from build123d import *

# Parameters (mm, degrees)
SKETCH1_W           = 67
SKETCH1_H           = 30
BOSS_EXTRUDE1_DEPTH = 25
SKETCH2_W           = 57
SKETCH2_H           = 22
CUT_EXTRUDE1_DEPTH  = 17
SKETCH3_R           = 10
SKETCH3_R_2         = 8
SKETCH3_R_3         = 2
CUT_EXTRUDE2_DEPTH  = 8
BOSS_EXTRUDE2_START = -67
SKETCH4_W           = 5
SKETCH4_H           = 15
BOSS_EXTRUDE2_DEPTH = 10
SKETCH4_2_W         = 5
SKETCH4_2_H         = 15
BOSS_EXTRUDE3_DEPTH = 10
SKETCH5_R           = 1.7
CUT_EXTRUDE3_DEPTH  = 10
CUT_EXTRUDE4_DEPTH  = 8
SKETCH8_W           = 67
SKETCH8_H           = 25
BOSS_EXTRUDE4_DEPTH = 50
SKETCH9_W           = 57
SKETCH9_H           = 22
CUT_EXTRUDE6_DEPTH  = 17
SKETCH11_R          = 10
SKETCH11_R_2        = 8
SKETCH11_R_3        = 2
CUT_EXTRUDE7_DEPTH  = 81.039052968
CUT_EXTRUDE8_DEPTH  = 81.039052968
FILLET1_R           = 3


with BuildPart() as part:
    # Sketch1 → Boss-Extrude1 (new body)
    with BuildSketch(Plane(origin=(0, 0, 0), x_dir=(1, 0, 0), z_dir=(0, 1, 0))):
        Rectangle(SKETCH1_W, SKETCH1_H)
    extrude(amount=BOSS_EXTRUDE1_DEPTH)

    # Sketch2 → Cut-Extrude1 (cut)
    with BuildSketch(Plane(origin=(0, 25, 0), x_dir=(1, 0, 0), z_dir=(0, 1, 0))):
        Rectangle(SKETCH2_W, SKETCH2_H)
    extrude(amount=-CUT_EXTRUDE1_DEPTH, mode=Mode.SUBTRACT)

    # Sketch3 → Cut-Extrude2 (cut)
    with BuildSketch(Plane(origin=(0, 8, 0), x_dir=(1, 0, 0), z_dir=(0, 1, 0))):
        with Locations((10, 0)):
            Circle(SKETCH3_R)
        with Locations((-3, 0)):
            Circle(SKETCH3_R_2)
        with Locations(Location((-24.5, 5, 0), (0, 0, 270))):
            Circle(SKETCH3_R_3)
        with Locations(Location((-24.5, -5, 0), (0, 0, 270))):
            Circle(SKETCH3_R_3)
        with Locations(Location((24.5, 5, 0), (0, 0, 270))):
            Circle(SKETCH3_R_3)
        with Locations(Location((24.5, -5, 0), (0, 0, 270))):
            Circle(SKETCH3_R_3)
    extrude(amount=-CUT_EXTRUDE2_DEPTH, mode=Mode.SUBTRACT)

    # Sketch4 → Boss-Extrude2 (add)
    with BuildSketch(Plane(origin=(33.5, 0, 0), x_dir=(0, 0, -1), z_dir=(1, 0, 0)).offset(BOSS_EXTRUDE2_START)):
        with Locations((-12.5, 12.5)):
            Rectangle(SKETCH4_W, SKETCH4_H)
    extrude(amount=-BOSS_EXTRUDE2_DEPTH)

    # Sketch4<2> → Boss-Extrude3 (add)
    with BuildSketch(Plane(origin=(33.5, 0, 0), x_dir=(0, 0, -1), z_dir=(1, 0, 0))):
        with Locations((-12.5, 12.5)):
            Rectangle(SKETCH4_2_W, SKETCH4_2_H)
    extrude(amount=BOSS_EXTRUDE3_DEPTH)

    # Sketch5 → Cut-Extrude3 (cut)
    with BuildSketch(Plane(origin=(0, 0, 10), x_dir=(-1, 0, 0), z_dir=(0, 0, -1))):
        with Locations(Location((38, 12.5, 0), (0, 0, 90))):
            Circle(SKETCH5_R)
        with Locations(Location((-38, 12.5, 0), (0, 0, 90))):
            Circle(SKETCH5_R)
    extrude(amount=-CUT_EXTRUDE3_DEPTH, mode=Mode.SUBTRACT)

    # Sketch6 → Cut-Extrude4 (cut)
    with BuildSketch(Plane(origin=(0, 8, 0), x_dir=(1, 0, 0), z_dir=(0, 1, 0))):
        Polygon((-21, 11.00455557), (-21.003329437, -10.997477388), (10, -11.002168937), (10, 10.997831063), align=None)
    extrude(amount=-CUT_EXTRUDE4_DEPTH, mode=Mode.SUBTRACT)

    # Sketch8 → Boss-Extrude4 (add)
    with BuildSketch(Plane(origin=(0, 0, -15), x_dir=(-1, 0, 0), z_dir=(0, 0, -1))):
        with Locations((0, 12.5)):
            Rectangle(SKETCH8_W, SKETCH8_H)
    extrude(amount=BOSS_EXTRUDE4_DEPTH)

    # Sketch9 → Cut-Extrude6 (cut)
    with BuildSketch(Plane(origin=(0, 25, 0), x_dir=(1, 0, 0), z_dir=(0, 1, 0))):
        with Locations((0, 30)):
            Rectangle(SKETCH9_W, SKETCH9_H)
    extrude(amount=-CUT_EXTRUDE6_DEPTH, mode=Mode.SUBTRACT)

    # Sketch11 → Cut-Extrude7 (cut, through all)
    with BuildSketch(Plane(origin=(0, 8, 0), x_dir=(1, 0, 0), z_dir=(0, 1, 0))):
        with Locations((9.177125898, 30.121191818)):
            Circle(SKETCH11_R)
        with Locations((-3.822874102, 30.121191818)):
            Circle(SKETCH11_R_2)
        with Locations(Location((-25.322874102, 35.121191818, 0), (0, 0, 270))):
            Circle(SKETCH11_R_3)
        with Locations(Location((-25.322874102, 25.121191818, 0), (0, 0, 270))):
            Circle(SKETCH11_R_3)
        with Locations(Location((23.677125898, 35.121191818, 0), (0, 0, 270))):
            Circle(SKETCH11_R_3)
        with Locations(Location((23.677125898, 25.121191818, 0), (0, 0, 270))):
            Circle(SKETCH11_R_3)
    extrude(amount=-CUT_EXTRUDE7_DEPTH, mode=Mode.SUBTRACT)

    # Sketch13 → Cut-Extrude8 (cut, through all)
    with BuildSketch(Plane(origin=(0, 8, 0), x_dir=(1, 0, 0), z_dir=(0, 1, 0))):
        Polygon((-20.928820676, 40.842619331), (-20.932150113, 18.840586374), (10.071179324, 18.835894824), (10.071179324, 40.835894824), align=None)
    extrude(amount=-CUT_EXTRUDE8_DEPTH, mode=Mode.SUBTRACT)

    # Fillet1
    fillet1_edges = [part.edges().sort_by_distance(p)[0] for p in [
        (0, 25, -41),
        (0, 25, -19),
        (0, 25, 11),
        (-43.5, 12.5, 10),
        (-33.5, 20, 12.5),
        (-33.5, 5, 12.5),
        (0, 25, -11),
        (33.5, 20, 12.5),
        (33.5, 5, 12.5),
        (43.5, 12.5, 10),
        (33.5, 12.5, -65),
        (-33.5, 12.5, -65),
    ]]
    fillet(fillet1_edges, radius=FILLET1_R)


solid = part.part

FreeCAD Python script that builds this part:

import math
import FreeCAD as App
import Part
import Sketcher


def edges_at(feature, points):
    """Names of the edges that pass closest to the given points."""
    edges = feature.Shape.Edges
    near = lambda p: min(range(len(edges)), key=lambda i: edges[i].distToShape(Part.Vertex(*p))[0])
    return sorted({f"Edge{near(p) + 1}" for p in points})


def add_polygon(sketch, points):
    """Adds a closed chain of lines whose ends are joined by coincident constraints."""
    first, n = sketch.GeometryCount, len(points)
    for a, b in zip(points, points[1:] + points[:1]):
        sketch.addGeometry(Part.LineSegment(App.Vector(*a, 0), App.Vector(*b, 0)), False)
    for i in range(n):
        sketch.addConstraint(Sketcher.Constraint("Coincident", first + i, 2, first + (i + 1) % n, 1))

doc = App.newDocument("Part")
params = doc.addObject("Spreadsheet::Sheet", "Params")
for row, (alias, value) in enumerate([
    ("sketch1_width", "67 mm"),
    ("sketch1_height", "30 mm"),
    ("pad1_length", "25 mm"),
    ("sketch2_width", "57 mm"),
    ("sketch2_height", "22 mm"),
    ("pocket1_length", "17 mm"),
    ("sketch3_diameter", "4 mm"),
    ("sketch3_radius", "8 mm"),
    ("sketch3_radius2", "10 mm"),
    ("pocket2_length", "8 mm"),
    ("sketch4_width", "15 mm"),
    ("sketch4_height", "5 mm"),
    ("pad2_length", "10 mm"),
    ("sketch5_width", "15 mm"),
    ("sketch5_height", "5 mm"),
    ("pad3_length", "10 mm"),
    ("sketch6_diameter", "3.4 mm"),
    ("pocket3_length", "10 mm"),
    ("sketch7_height", "22 mm"),
    ("sketch7_length", "31.000001 mm"),
    ("pocket4_length", "8 mm"),
    ("sketch8_width", "67 mm"),
    ("sketch8_height", "25 mm"),
    ("pad4_length", "50 mm"),
    ("sketch9_width", "57 mm"),
    ("sketch9_height", "22 mm"),
    ("pocket5_length", "17 mm"),
    ("sketch10_diameter", "4 mm"),
    ("sketch10_radius", "8 mm"),
    ("sketch10_radius2", "10 mm"),
    ("sketch11_height", "22 mm"),
    ("sketch11_length", "31.000001 mm"),
    ("fillet_radius", "3 mm"),
], start=1):
    params.set(f"A{row}", alias)
    params.set(f"B{row}", "=" + value)
    params.setAlias(f"B{row}", alias)

body = doc.addObject("PartDesign::Body", "Body")

# Sketch on XZ plane
sketch1 = body.newObject("Sketcher::SketchObject", "Sketch")
sketch1.AttachmentSupport = (doc.getObject("XZ_Plane"), [""])
sketch1.MapMode = "FlatFace"
add_polygon(sketch1, [(-34, -15), (-34, 15), (34, 15), (34, -15)])  # lines 0-3
sketch1.addConstraint([
    Sketcher.Constraint("Vertical", 0),
    Sketcher.Constraint("Horizontal", 1),
    Sketcher.Constraint("Vertical", 2),
    Sketcher.Constraint("Horizontal", 3),
    Sketcher.Constraint("Symmetric", 0, 2, 2, 2, -1, 1),
    Sketcher.Constraint("DistanceX", 1, 1, 1, 2, 67.0),
    Sketcher.Constraint("DistanceY", 0, 1, 0, 2, 30.0),
])
sketch1.setExpression("Constraints[9]", "Params.sketch1_width")
sketch1.setExpression("Constraints[10]", "Params.sketch1_height")
pad1 = body.newObject("PartDesign::Pad", "Pad")
pad1.Profile = sketch1
pad1.setExpression("Length", "Params.pad1_length")
pad1.Reversed = True

# Sketch on XZ plane
sketch2 = body.newObject("Sketcher::SketchObject", "Sketch001")
sketch2.AttachmentSupport = (doc.getObject("XZ_Plane"), [""])
sketch2.MapMode = "FlatFace"
sketch2.AttachmentOffset = App.Placement(App.Vector(0, 0, -25), App.Rotation())
add_polygon(sketch2, [(-28, -11), (-28, 11), (28, 11), (28, -11)])  # lines 0-3
sketch2.addConstraint([
    Sketcher.Constraint("Vertical", 0),
    Sketcher.Constraint("Horizontal", 1),
    Sketcher.Constraint("Vertical", 2),
    Sketcher.Constraint("Horizontal", 3),
    Sketcher.Constraint("Symmetric", 0, 2, 2, 2, -1, 1),
    Sketcher.Constraint("DistanceX", 1, 1, 1, 2, 57.0),
    Sketcher.Constraint("DistanceY", 0, 1, 0, 2, 22.0),
])
sketch2.setExpression("Constraints[9]", "Params.sketch2_width")
sketch2.setExpression("Constraints[10]", "Params.sketch2_height")
pocket1 = body.newObject("PartDesign::Pocket", "Pocket")
pocket1.Profile = sketch2
pocket1.setExpression("Length", "Params.pocket1_length")
pocket1.Reversed = True

# Sketch on XZ plane
sketch3 = body.newObject("Sketcher::SketchObject", "Sketch002")
sketch3.AttachmentSupport = (doc.getObject("XZ_Plane"), [""])
sketch3.MapMode = "FlatFace"
sketch3.AttachmentOffset = App.Placement(App.Vector(0, 0, -8), App.Rotation())
sketch3.addGeometry([
    Part.ArcOfCircle(Part.Circle(App.Vector(-3, 0, 0), App.Vector(0, 0, 1), 8), math.radians(50), math.radians(310)),  # 0
    Part.ArcOfCircle(Part.Circle(App.Vector(10, 0, 0), App.Vector(0, 0, 1), 10), math.radians(-142), math.radians(142)),  # 1
    Part.Circle(App.Vector(-24.5, -5, 0), App.Vector(0, 0, 1), 2),  # 2
    Part.Circle(App.Vector(-24.5, 5, 0), App.Vector(0, 0, 1), 2),  # 3
    Part.Circle(App.Vector(24.5, -5, 0), App.Vector(0, 0, 1), 2),  # 4
    Part.Circle(App.Vector(24.5, 5, 0), App.Vector(0, 0, 1), 2),  # 5
], False)
sketch3.addConstraint([
    Sketcher.Constraint("Coincident", 0, 1, 1, 2),
    Sketcher.Constraint("Coincident", 1, 1, 0, 2),
    Sketcher.Constraint("Equal", 2, 3),
    Sketcher.Constraint("Equal", 3, 4),
    Sketcher.Constraint("Equal", 4, 5),
    Sketcher.Constraint("Symmetric", 3, 3, 4, 3, -1, 1),
    Sketcher.Constraint("Symmetric", 2, 3, 5, 3, -1, 1),
    Sketcher.Constraint("Symmetric", 2, 3, 4, 3, -2),
    Sketcher.Constraint("Symmetric", 0, 1, 1, 1, -1),
    Sketcher.Constraint("Diameter", 2, 4.0),
    Sketcher.Constraint("Radius", 0, 8.0),
    Sketcher.Constraint("Radius", 1, 10.0),
    Sketcher.Constraint("DistanceX", 0, 3, -1, 1, 3.0),
    Sketcher.Constraint("DistanceX", -1, 1, 1, 3, 10.0),
    Sketcher.Constraint("DistanceY", 2, 3, -1, 1, 5.0),
    Sketcher.Constraint("DistanceX", 2, 3, 4, 3, 49.0),
])
sketch3.setExpression("Constraints[9]", "Params.sketch3_diameter")
sketch3.setExpression("Constraints[10]", "Params.sketch3_radius")
sketch3.setExpression("Constraints[11]", "Params.sketch3_radius2")
pocket2 = body.newObject("PartDesign::Pocket", "Pocket001")
pocket2.Profile = sketch3
pocket2.setExpression("Length", "Params.pocket2_length")
pocket2.Reversed = True

# Sketch on YZ plane
sketch4 = body.newObject("Sketcher::SketchObject", "Sketch003")
sketch4.AttachmentSupport = (doc.getObject("YZ_Plane"), [""])
sketch4.MapMode = "FlatFace"
sketch4.AttachmentOffset = App.Placement(App.Vector(0, 0, -33.5), App.Rotation())
add_polygon(sketch4, [(20, 15), (5, 15), (5, 10), (20, 10)])  # lines 0-3
sketch4.addConstraint([
    Sketcher.Constraint("Horizontal", 0),
    Sketcher.Constraint("Vertical", 1),
    Sketcher.Constraint("Horizontal", 2),
    Sketcher.Constraint("Vertical", 3),
    Sketcher.Constraint("DistanceX", 0, 2, 0, 1, 15.0),
    Sketcher.Constraint("DistanceY", 1, 2, 1, 1, 5.0),
    Sketcher.Constraint("DistanceX", -1, 1, 0, 2, 5.0),
    Sketcher.Constraint("DistanceY", -1, 1, 0, 2, 15.0),
])
sketch4.setExpression("Constraints[8]", "Params.sketch4_width")
sketch4.setExpression("Constraints[9]", "Params.sketch4_height")
pad2 = body.newObject("PartDesign::Pad", "Pad001")
pad2.Profile = sketch4
pad2.setExpression("Length", "Params.pad2_length")
pad2.Reversed = True

# Sketch on YZ plane
sketch5 = body.newObject("Sketcher::SketchObject", "Sketch004")
sketch5.AttachmentSupport = (doc.getObject("YZ_Plane"), [""])
sketch5.MapMode = "FlatFace"
sketch5.AttachmentOffset = App.Placement(App.Vector(0, 0, 33.5), App.Rotation())
add_polygon(sketch5, [(20, 15), (5, 15), (5, 10), (20, 10)])  # lines 0-3
sketch5.addConstraint([
    Sketcher.Constraint("Horizontal", 0),
    Sketcher.Constraint("Vertical", 1),
    Sketcher.Constraint("Horizontal", 2),
    Sketcher.Constraint("Vertical", 3),
    Sketcher.Constraint("DistanceX", 0, 2, 0, 1, 15.0),
    Sketcher.Constraint("DistanceY", 1, 2, 1, 1, 5.0),
    Sketcher.Constraint("DistanceX", -1, 1, 0, 2, 5.0),
    Sketcher.Constraint("DistanceY", -1, 1, 0, 2, 15.0),
])
sketch5.setExpression("Constraints[8]", "Params.sketch5_width")
sketch5.setExpression("Constraints[9]", "Params.sketch5_height")
pad3 = body.newObject("PartDesign::Pad", "Pad002")
pad3.Profile = sketch5
pad3.setExpression("Length", "Params.pad3_length")

# Sketch on XY plane
sketch6 = body.newObject("Sketcher::SketchObject", "Sketch005")
sketch6.AttachmentSupport = (doc.getObject("XY_Plane"), [""])
sketch6.MapMode = "FlatFace"
sketch6.AttachmentOffset = App.Placement(App.Vector(0, 0, 10), App.Rotation())
sketch6.addGeometry([
    Part.Circle(App.Vector(-38, 12.5, 0), App.Vector(0, 0, 1), 1.7),
    Part.Circle(App.Vector(38, 12.5, 0), App.Vector(0, 0, 1), 1.7),
], False)
sketch6.addConstraint([
    Sketcher.Constraint("Equal", 0, 1),
    Sketcher.Constraint("Symmetric", 0, 3, 1, 3, -2),
    Sketcher.Constraint("Diameter", 0, 3.4),
    Sketcher.Constraint("DistanceX", 0, 3, -1, 1, 38.0),
    Sketcher.Constraint("DistanceY", -1, 1, 0, 3, 12.5),
])
sketch6.setExpression("Constraints[2]", "Params.sketch6_diameter")
pocket3 = body.newObject("PartDesign::Pocket", "Pocket002")
pocket3.Profile = sketch6
pocket3.setExpression("Length", "Params.pocket3_length")
pocket3.Reversed = True

# Sketch on XZ plane
sketch7 = body.newObject("Sketcher::SketchObject", "Sketch006")
sketch7.AttachmentSupport = (doc.getObject("XZ_Plane"), [""])
sketch7.MapMode = "FlatFace"
sketch7.AttachmentOffset = App.Placement(App.Vector(0, 0, -8), App.Rotation())
add_polygon(sketch7, [(-21, -11), (-21, 11), (10, 11), (10, -11)])  # lines 0-3
sketch7.addConstraint([
    Sketcher.Constraint("Vertical", 2),
    Sketcher.Constraint("Perpendicular", 0, 1),
    Sketcher.Constraint("DistanceY", 2, 2, 2, 1, 22.0),
    Sketcher.Constraint("Distance", 3, 31.000001),
    Sketcher.Constraint("DistanceX", -1, 1, 1, 2, 10.0),
    Sketcher.Constraint("Distance", 1, 31.00333),
    Sketcher.Constraint("DistanceY", -1, 1, 1, 2, 11.002169),
    Sketcher.Constraint("Distance", 0, 22.002033),
])
sketch7.setExpression("Constraints[6]", "Params.sketch7_height")
sketch7.setExpression("Constraints[7]", "Params.sketch7_length")
pocket4 = body.newObject("PartDesign::Pocket", "Pocket003")
pocket4.Profile = sketch7
pocket4.setExpression("Length", "Params.pocket4_length")
pocket4.Reversed = True

# Sketch on XY plane
sketch8 = body.newObject("Sketcher::SketchObject", "Sketch007")
sketch8.AttachmentSupport = (doc.getObject("XY_Plane"), [""])
sketch8.MapMode = "FlatFace"
sketch8.AttachmentOffset = App.Placement(App.Vector(0, 0, -15), App.Rotation())
add_polygon(sketch8, [(34, 25), (34, 0), (-34, 0), (-34, 25)])  # lines 0-3
sketch8.addConstraint([
    Sketcher.Constraint("Vertical", 0),
    Sketcher.Constraint("Horizontal", 1),
    Sketcher.Constraint("Vertical", 2),
    Sketcher.Constraint("Horizontal", 3),
    Sketcher.Constraint("Symmetric", 0, 2, 1, 2, -1, 1),
    Sketcher.Constraint("DistanceX", 1, 2, 1, 1, 67.0),
    Sketcher.Constraint("DistanceY", 0, 2, 0, 1, 25.0),
])
sketch8.setExpression("Constraints[9]", "Params.sketch8_width")
sketch8.setExpression("Constraints[10]", "Params.sketch8_height")
pad4 = body.newObject("PartDesign::Pad", "Pad003")
pad4.Profile = sketch8
pad4.setExpression("Length", "Params.pad4_length")
pad4.Reversed = True

# Sketch on XZ plane
sketch9 = body.newObject("Sketcher::SketchObject", "Sketch008")
sketch9.AttachmentSupport = (doc.getObject("XZ_Plane"), [""])
sketch9.MapMode = "FlatFace"
sketch9.AttachmentOffset = App.Placement(App.Vector(0, 0, -25), App.Rotation())
add_polygon(sketch9, [(-28, -41), (-28, -19), (28, -19), (28, -41)])  # lines 0-3
sketch9.addConstraint([
    Sketcher.Constraint("Vertical", 0),
    Sketcher.Constraint("Horizontal", 1),
    Sketcher.Constraint("Vertical", 2),
    Sketcher.Constraint("Horizontal", 3),
    Sketcher.Constraint("DistanceX", 1, 1, 1, 2, 57.0),
    Sketcher.Constraint("DistanceY", 0, 1, 0, 2, 22.0),
    Sketcher.Constraint("DistanceY", 0, 2, -1, 1, 19.0),
    Sketcher.Constraint("DistanceX", 0, 2, -1, 1, 28.5),
])
sketch9.setExpression("Constraints[8]", "Params.sketch9_width")
sketch9.setExpression("Constraints[9]", "Params.sketch9_height")
pocket5 = body.newObject("PartDesign::Pocket", "Pocket004")
pocket5.Profile = sketch9
pocket5.setExpression("Length", "Params.pocket5_length")
pocket5.Reversed = True

# Sketch on XZ plane
sketch10 = body.newObject("Sketcher::SketchObject", "Sketch009")
sketch10.AttachmentSupport = (doc.getObject("XZ_Plane"), [""])
sketch10.MapMode = "FlatFace"
sketch10.AttachmentOffset = App.Placement(App.Vector(0, 0, -8), App.Rotation())
sketch10.addGeometry([
    Part.ArcOfCircle(Part.Circle(App.Vector(-3.8, -30.1, 0), App.Vector(0, 0, 1), 8), math.radians(50), math.radians(310)),  # 0
    Part.ArcOfCircle(Part.Circle(App.Vector(9.2, -30.1, 0), App.Vector(0, 0, 1), 10), math.radians(-142), math.radians(142)),  # 1
    Part.Circle(App.Vector(-25.3, -35.1, 0), App.Vector(0, 0, 1), 2),  # 2
    Part.Circle(App.Vector(-25.3, -25.1, 0), App.Vector(0, 0, 1), 2),  # 3
    Part.Circle(App.Vector(23.7, -35.1, 0), App.Vector(0, 0, 1), 2),  # 4
    Part.Circle(App.Vector(23.7, -25.1, 0), App.Vector(0, 0, 1), 2),  # 5
], False)
sketch10.addConstraint([
    Sketcher.Constraint("Coincident", 0, 1, 1, 2),
    Sketcher.Constraint("Coincident", 1, 1, 0, 2),
    Sketcher.Constraint("Equal", 2, 3),
    Sketcher.Constraint("Equal", 3, 4),
    Sketcher.Constraint("Equal", 4, 5),
    Sketcher.Constraint("Horizontal", 0, 3, 1, 3),
    Sketcher.Constraint("Horizontal", 2, 3, 4, 3),
    Sketcher.Constraint("Horizontal", 3, 3, 5, 3),
    Sketcher.Constraint("Vertical", 2, 3, 3, 3),
    Sketcher.Constraint("Vertical", 4, 3, 5, 3),
    Sketcher.Constraint("Diameter", 2, 4.0),
    Sketcher.Constraint("Radius", 0, 8.0),
    Sketcher.Constraint("Radius", 1, 10.0),
    Sketcher.Constraint("DistanceX", 0, 3, 1, 3, 13.0),
    Sketcher.Constraint("DistanceY", 2, 3, 0, 3, 5.0),
    Sketcher.Constraint("DistanceY", 2, 3, 3, 3, 10.0),
    Sketcher.Constraint("DistanceX", 2, 3, 4, 3, 49.0),
    Sketcher.Constraint("DistanceX", 2, 3, 0, 3, 21.5),
    Sketcher.Constraint("DistanceY", 0, 3, -1, 1, 30.121192),
    Sketcher.Constraint("DistanceX", -1, 1, 0, 1, 1.292511),
])
sketch10.setExpression("Constraints[10]", "Params.sketch10_diameter")
sketch10.setExpression("Constraints[11]", "Params.sketch10_radius")
sketch10.setExpression("Constraints[12]", "Params.sketch10_radius2")
pocket6 = body.newObject("PartDesign::Pocket", "Pocket005")
pocket6.Profile = sketch10
pocket6.Type = "ThroughAll"
pocket6.Reversed = True

# Sketch on XZ plane
sketch11 = body.newObject("Sketcher::SketchObject", "Sketch010")
sketch11.AttachmentSupport = (doc.getObject("XZ_Plane"), [""])
sketch11.MapMode = "FlatFace"
sketch11.AttachmentOffset = App.Placement(App.Vector(0, 0, -8), App.Rotation())
add_polygon(sketch11, [(-21, -41), (-21, -19), (10, -19), (10, -41)])  # lines 0-3
sketch11.addConstraint([
    Sketcher.Constraint("Vertical", 2),
    Sketcher.Constraint("Perpendicular", 0, 1),
    Sketcher.Constraint("DistanceY", 2, 2, 2, 1, 22.0),
    Sketcher.Constraint("Distance", 3, 31.000001),
    Sketcher.Constraint("Distance", 1, 31.00333),
    Sketcher.Constraint("DistanceX", 0, 2, -1, 1, 20.93215),
    Sketcher.Constraint("DistanceY", 3, 2, -1, 1, 40.842619),
    Sketcher.Constraint("Distance", 0, 22.002033),
])
sketch11.setExpression("Constraints[6]", "Params.sketch11_height")
sketch11.setExpression("Constraints[7]", "Params.sketch11_length")
pocket7 = body.newObject("PartDesign::Pocket", "Pocket006")
pocket7.Profile = sketch11
pocket7.Type = "ThroughAll"
pocket7.Reversed = True
doc.recompute()

fillet = body.newObject("PartDesign::Fillet", "Fillet")
fillet.Base = (pocket7, edges_at(pocket7, [
    (0, 25, -41),
    (0, 25, -19),
    (0, 25, 11),
    (-43.5, 12.5, 10),
    (-33.5, 20, 12.5),
    (-33.5, 5, 12.5),
    (0, 25, -11),
    (33.5, 20, 12.5),
    (33.5, 5, 12.5),
    (43.5, 12.5, 10),
    (33.5, 12.5, -65),
    (-33.5, 12.5, -65),
]))
fillet.setExpression("Radius", "Params.fillet_radius")

doc.recompute()
